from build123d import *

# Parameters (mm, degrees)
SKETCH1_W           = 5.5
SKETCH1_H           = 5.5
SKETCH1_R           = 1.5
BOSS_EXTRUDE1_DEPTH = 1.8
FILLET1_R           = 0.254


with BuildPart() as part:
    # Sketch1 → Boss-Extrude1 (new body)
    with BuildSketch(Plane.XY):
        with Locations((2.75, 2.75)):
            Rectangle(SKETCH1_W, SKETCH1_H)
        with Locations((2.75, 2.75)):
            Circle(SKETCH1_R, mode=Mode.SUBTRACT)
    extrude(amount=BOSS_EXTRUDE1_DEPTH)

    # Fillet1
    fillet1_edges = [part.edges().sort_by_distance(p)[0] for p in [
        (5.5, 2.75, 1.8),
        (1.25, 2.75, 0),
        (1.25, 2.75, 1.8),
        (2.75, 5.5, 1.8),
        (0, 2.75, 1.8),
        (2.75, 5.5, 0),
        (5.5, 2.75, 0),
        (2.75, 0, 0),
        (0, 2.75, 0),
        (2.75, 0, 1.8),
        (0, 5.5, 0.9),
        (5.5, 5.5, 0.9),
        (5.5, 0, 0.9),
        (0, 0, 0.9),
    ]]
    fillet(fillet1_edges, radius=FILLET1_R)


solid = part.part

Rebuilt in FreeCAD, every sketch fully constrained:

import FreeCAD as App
import Part
import Sketcher
from FreeCAD import Vector
Q = App.Units.Quantity


def add_polygon(sketch, points):
    """Adds a closed chain of lines whose ends are joined by coincident constraints."""
    first, n = sketch.GeometryCount, len(points)
    for a, b in zip(points, points[1:] + points[:1]):
        sketch.addGeometry(Part.LineSegment(App.Vector(*a, 0), App.Vector(*b, 0)), False)
    for i in range(n):
        sketch.addConstraint(Sketcher.Constraint("Coincident", first + i, 2, first + (i + 1) % n, 1))

doc = App.newDocument("Part")
params = doc.addObject("Spreadsheet::Sheet", "Params")
for row, (alias, value) in enumerate([
    ("sketch1_diameter", "3 mm"),
    ("sketch1_width", "5.5 mm"),
    ("pad1_length", "1.8 mm"),
    ("fillet_radius", "0.254 mm"),
], start=1):
    params.set(f"A{row}", alias)
    params.set(f"B{row}", "=" + value)
    params.setAlias(f"B{row}", alias)

body = doc.addObject("PartDesign::Body", "Body")

sketch1 = doc.addObject("Sketcher::SketchObject", "Sketch")
body.addObject(sketch1)
sketch1.AttachmentSupport = (doc.XY_Plane, [""])
sketch1.MapMode = "FlatFace"
add_polygon(sketch1, [(0, 5.5), (0, 0), (5.5, 0), (5.5, 5.5)])
sketch1.addGeometry(Part.Circle(Vector(2.8, 2.8, 0), Vector(0, 0, 1), 1.5), False)
sketch1.addConstraint([
    Sketcher.Constraint("Vertical", 0),
    Sketcher.Constraint("Horizontal", 1),
    Sketcher.Constraint("Vertical", 2),
    Sketcher.Constraint("Horizontal", 3),
    Sketcher.Constraint("Coincident", 0, 2, -1, 1),
    Sketcher.Constraint("Equal", 3, 0),
    Sketcher.Constraint("Diameter", 4, Q("3 mm")),
    Sketcher.Constraint("DistanceX", 1, 1, 1, 2, Q("5.5 mm")),
    Sketcher.Constraint("DistanceX", -1, 1, 4, 3, Q("2.75 mm")),
    Sketcher.Constraint("DistanceY", -1, 1, 4, 3, Q("2.75 mm")),
])
sketch1.setExpression("Constraints[10]", "Params.sketch1_diameter")
sketch1.setExpression("Constraints[11]", "Params.sketch1_width")
pad1 = doc.addObject("PartDesign::Pad", "Pad")
body.addObject(pad1)
pad1.Profile = sketch1
pad1.setExpression("Length", "Params.pad1_length")
doc.recompute()

fillet = doc.addObject("PartDesign::Fillet", "Fillet")
body.addObject(fillet)
fillet.Base = (pad1, ["Edge1"])
fillet.UseAllEdges = True
fillet.setExpression("Radius", "Params.fillet_radius")

doc.recompute()
